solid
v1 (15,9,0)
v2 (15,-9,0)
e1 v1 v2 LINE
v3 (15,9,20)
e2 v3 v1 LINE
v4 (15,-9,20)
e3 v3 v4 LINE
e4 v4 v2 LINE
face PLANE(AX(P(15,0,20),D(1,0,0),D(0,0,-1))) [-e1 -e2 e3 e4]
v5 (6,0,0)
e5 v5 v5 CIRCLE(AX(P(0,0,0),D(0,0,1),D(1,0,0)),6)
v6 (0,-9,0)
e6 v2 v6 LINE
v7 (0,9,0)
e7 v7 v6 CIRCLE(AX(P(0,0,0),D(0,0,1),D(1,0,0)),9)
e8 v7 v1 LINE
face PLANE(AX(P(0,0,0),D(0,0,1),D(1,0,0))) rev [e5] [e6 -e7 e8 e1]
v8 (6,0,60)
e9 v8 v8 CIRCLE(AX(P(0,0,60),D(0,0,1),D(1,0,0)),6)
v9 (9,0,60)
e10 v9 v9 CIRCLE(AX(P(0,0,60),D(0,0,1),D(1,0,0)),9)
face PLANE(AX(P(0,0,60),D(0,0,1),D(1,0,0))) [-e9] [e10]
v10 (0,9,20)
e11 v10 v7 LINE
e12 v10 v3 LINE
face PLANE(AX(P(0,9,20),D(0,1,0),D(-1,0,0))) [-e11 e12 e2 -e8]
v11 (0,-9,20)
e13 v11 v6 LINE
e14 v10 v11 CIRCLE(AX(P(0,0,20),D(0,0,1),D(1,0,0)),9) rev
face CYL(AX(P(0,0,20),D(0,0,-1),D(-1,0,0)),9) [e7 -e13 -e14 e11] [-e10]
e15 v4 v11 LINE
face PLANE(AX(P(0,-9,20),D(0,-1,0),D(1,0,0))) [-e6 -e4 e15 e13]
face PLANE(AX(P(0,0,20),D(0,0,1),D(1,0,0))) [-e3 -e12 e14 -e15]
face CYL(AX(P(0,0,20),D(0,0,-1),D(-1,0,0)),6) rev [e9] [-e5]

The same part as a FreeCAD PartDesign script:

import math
import FreeCAD as App
import Part
import Sketcher
from FreeCAD import Vector

doc = App.newDocument("Part")
body = doc.addObject("PartDesign::Body", "Body")

sketch1 = body.newObject("Sketcher::SketchObject", "Sketch")
sketch1.AttachmentSupport = (doc.getObject("XY_Plane"), [""])
sketch1.MapMode = "FlatFace"
sketch1.addGeometry([
    Part.LineSegment(Vector(15, 9, 0), Vector(0, 9, 0)),
    Part.ArcOfCircle(Part.Circle(Vector(0, 0, 0), Vector(0, 0, 1), 9), math.radians(90), math.radians(270)),
    Part.LineSegment(Vector(0, -9, 0), Vector(15, -9, 0)),
    Part.LineSegment(Vector(15, -9, 0), Vector(15, 9, 0)),
    Part.Circle(Vector(0, 0, 0), Vector(0, 0, 1), 6),
], False)
sketch1.addConstraint([
    Sketcher.Constraint("Tangent", 0, 2, 1, 1),
    Sketcher.Constraint("Tangent", 1, 2, 2, 1),
    Sketcher.Constraint("Coincident", 2, 2, 3, 1),
    Sketcher.Constraint("Coincident", 3, 2, 0, 1),
    Sketcher.Constraint("Horizontal", 0),
    Sketcher.Constraint("Horizontal", 2),
    Sketcher.Constraint("Vertical", 3),
    Sketcher.Constraint("Coincident", 1, 3, -1, 1),
    Sketcher.Constraint("Coincident", 4, 3, -1, 1),
    Sketcher.Constraint("Diameter", 4, 12.0),
    Sketcher.Constraint("Radius", 1, 9.0),
    Sketcher.Constraint("DistanceX", 0, 2, 0, 1, 15.0),
])
pad1 = body.newObject("PartDesign::Pad", "Pad")
pad1.Profile = sketch1
pad1.Length = 20

sketch2 = body.newObject("Sketcher::SketchObject", "Sketch001")
sketch2.AttachmentSupport = (doc.getObject("XY_Plane"), [""])
sketch2.MapMode = "FlatFace"
sketch2.addGeometry([
    Part.Circle(Vector(0, 0, 0), Vector(0, 0, 1), 9),
    Part.Circle(Vector(0, 0, 0), Vector(0, 0, 1), 6),
], False)
sketch2.addConstraint([
    Sketcher.Constraint("Coincident", 0, 3, -1, 1),
    Sketcher.Constraint("Coincident", 1, 3, -1, 1),
    Sketcher.Constraint("Diameter", 0, 18.0),
    Sketcher.Constraint("Diameter", 1, 12.0),
])
pad2 = body.newObject("PartDesign::Pad", "Pad001")
pad2.Profile = sketch2
pad2.Length = 60

doc.recompute()
